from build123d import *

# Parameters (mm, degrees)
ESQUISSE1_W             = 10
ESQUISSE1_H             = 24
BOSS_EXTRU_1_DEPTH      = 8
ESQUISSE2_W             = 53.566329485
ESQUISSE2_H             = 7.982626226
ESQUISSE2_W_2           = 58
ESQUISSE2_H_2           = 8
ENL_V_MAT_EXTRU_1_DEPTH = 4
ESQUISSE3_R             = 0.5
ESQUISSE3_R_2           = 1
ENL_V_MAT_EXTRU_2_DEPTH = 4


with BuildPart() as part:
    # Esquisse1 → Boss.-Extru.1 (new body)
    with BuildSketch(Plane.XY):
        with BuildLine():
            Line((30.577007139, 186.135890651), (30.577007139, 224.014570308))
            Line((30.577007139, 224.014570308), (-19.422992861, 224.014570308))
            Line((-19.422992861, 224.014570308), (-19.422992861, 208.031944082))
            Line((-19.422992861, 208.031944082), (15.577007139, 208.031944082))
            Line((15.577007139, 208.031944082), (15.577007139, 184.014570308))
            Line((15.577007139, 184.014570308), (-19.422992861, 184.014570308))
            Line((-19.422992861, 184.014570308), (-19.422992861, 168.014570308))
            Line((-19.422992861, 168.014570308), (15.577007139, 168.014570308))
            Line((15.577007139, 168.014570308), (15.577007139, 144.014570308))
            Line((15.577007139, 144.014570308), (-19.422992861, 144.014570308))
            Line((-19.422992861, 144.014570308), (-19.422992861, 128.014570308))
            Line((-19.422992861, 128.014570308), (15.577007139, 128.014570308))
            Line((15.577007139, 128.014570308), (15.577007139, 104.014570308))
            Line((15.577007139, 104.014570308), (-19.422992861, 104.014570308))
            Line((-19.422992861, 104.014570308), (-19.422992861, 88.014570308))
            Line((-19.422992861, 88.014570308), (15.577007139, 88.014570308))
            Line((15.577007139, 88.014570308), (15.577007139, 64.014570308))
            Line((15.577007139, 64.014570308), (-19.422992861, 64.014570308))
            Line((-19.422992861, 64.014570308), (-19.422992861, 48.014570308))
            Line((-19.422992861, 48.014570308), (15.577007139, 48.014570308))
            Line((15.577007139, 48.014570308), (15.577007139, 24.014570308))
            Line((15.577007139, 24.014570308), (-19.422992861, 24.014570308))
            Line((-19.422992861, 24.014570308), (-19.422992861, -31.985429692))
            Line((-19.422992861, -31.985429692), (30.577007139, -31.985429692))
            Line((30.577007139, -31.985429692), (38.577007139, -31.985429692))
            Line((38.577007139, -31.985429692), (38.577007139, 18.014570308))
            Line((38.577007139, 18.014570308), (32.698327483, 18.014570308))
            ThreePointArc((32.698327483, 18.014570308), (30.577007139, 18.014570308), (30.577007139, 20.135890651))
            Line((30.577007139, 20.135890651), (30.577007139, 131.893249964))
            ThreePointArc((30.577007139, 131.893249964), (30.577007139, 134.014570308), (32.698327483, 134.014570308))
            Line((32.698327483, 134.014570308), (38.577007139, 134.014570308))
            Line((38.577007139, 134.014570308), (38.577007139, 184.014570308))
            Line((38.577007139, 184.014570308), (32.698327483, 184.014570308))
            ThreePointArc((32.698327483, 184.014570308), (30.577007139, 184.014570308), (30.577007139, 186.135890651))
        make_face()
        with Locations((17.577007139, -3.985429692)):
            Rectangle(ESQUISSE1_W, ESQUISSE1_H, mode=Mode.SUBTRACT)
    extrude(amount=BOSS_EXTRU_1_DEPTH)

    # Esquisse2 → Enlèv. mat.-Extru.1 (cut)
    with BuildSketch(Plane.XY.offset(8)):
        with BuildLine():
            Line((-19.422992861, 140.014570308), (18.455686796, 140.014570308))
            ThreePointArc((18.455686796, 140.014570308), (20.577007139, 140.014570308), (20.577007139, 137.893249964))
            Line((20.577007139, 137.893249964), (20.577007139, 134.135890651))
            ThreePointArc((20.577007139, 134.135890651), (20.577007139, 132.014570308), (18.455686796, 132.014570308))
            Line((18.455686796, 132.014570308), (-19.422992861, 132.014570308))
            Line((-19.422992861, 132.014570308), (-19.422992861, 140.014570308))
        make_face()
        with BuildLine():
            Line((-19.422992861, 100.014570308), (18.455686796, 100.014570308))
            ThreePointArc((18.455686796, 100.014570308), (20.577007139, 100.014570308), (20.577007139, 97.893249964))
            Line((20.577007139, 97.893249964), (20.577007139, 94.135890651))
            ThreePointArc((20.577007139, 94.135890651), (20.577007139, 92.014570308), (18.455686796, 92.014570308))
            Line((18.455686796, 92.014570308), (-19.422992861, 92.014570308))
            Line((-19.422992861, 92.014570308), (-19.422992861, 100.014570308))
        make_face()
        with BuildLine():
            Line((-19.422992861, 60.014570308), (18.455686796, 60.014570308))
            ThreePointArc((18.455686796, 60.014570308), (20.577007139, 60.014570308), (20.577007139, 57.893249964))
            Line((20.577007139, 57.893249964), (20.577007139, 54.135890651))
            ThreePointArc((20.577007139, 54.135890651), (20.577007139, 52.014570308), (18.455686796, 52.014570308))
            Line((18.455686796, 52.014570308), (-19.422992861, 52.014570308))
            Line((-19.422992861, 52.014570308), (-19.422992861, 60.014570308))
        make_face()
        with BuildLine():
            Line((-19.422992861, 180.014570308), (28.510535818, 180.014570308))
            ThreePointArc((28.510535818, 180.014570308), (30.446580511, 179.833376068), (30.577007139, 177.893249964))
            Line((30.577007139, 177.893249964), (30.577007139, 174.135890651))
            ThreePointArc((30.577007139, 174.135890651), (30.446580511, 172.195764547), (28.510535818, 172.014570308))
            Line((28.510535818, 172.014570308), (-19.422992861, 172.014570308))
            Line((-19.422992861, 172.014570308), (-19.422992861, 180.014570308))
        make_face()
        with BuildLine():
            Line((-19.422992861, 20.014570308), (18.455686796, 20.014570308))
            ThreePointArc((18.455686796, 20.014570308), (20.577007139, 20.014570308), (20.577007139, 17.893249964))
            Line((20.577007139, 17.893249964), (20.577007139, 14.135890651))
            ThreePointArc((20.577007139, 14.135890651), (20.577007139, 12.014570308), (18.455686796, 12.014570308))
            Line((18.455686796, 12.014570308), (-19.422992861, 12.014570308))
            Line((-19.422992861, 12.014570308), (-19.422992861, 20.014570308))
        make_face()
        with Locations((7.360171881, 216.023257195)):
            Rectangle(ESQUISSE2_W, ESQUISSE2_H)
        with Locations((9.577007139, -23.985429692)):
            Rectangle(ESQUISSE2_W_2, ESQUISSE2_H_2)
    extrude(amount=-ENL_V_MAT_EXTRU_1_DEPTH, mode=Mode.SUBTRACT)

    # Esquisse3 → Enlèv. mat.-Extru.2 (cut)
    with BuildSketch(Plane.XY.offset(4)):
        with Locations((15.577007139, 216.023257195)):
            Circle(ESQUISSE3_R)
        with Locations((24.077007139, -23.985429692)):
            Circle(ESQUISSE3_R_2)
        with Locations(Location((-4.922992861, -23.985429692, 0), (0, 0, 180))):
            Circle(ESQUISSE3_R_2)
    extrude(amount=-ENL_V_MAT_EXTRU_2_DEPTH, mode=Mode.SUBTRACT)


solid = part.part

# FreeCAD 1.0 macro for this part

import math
import FreeCAD as App
import Part
import Sketcher


def add_polygon(sketch, points):
    """Adds a closed chain of lines whose ends are joined by coincident constraints."""
    first, n = sketch.GeometryCount, len(points)
    for a, b in zip(points, points[1:] + points[:1]):
        sketch.addGeometry(Part.LineSegment(App.Vector(*a, 0), App.Vector(*b, 0)), False)
    for i in range(n):
        sketch.addConstraint(Sketcher.Constraint("Coincident", first + i, 2, first + (i + 1) % n, 1))

doc = App.newDocument("Part")
body = doc.addObject("PartDesign::Body", "Body")

sketch1 = body.newObject("Sketcher::SketchObject", "Sketch")
sketch1.AttachmentSupport = (doc.getObject("XY_Plane"), [""])
sketch1.MapMode = "FlatFace"
sketch1.addGeometry(Part.LineSegment(App.Vector(30.577007, 186.135891, 0), App.Vector(30.577007, 224.01457, 0)), False)
sketch1.addGeometry(Part.LineSegment(App.Vector(30.577007, 224.01457, 0), App.Vector(-19.422993, 224.01457, 0)), False)
sketch1.addGeometry(Part.LineSegment(App.Vector(-19.422993, 224.01457, 0), App.Vector(-19.422993, 208.031944, 0)), False)
sketch1.addGeometry(Part.LineSegment(App.Vector(-19.422993, 208.031944, 0), App.Vector(15.577007, 208.031944, 0)), False)
sketch1.addGeometry(Part.LineSegment(App.Vector(15.577007, 208.031944, 0), App.Vector(15.577007, 184.01457, 0)), False)
sketch1.addGeometry(Part.LineSegment(App.Vector(15.577007, 184.01457, 0), App.Vector(-19.422993, 184.01457, 0)), False)
sketch1.addGeometry(Part.LineSegment(App.Vector(-19.422993, 184.01457, 0), App.Vector(-19.422993, 168.01457, 0)), False)
sketch1.addGeometry(Part.LineSegment(App.Vector(-19.422993, 168.01457, 0), App.Vector(15.577007, 168.01457, 0)), False)
sketch1.addGeometry(Part.LineSegment(App.Vector(15.577007, 168.01457, 0), App.Vector(15.577007, 144.01457, 0)), False)
sketch1.addGeometry(Part.LineSegment(App.Vector(15.577007, 144.01457, 0), App.Vector(-19.422993, 144.01457, 0)), False)
sketch1.addGeometry(Part.LineSegment(App.Vector(-19.422993, 144.01457, 0), App.Vector(-19.422993, 128.01457, 0)), False)
sketch1.addGeometry(Part.LineSegment(App.Vector(-19.422993, 128.01457, 0), App.Vector(15.577007, 128.01457, 0)), False)
sketch1.addGeometry(Part.LineSegment(App.Vector(15.577007, 128.01457, 0), App.Vector(15.577007, 104.01457, 0)), False)
sketch1.addGeometry(Part.LineSegment(App.Vector(15.577007, 104.01457, 0), App.Vector(-19.422993, 104.01457, 0)), False)
sketch1.addGeometry(Part.LineSegment(App.Vector(-19.422993, 104.01457, 0), App.Vector(-19.422993, 88.01457, 0)), False)
sketch1.addGeometry(Part.LineSegment(App.Vector(-19.422993, 88.01457, 0), App.Vector(15.577007, 88.01457, 0)), False)
sketch1.addGeometry(Part.LineSegment(App.Vector(15.577007, 88.01457, 0), App.Vector(15.577007, 64.01457, 0)), False)
sketch1.addGeometry(Part.LineSegment(App.Vector(15.577007, 64.01457, 0), App.Vector(-19.422993, 64.01457, 0)), False)
sketch1.addGeometry(Part.LineSegment(App.Vector(-19.422993, 64.01457, 0), App.Vector(-19.422993, 48.01457, 0)), False)
sketch1.addGeometry(Part.LineSegment(App.Vector(-19.422993, 48.01457, 0), App.Vector(15.577007, 48.01457, 0)), False)
sketch1.addGeometry(Part.LineSegment(App.Vector(15.577007, 48.01457, 0), App.Vector(15.577007, 24.01457, 0)), False)
sketch1.addGeometry(Part.LineSegment(App.Vector(15.577007, 24.01457, 0), App.Vector(-19.422993, 24.01457, 0)), False)
sketch1.addGeometry(Part.LineSegment(App.Vector(-19.422993, 24.01457, 0), App.Vector(-19.422993, -31.98543, 0)), False)
sketch1.addGeometry(Part.LineSegment(App.Vector(-19.422993, -31.98543, 0), App.Vector(38.577007, -31.98543, 0)), False)
sketch1.addGeometry(Part.LineSegment(App.Vector(38.577007, -31.98543, 0), App.Vector(38.577007, 18.01457, 0)), False)
sketch1.addGeometry(Part.LineSegment(App.Vector(38.577007, 18.01457, 0), App.Vector(32.698327, 18.01457, 0)), False)
sketch1.addGeometry(Part.ArcOfCircle(Part.Circle(App.Vector(31.637667, 19.07523, 0), App.Vector(0, 0, 1), 1.5), math.radians(135), math.radians(315)), False)
sketch1.addGeometry(Part.LineSegment(App.Vector(30.577007, 20.135891, 0), App.Vector(30.577007, 131.89325, 0)), False)
sketch1.addGeometry(Part.ArcOfCircle(Part.Circle(App.Vector(31.637667, 132.95391, 0), App.Vector(0, 0, 1), 1.5), math.radians(45), math.radians(225)), False)
sketch1.addGeometry(Part.LineSegment(App.Vector(32.698327, 134.01457, 0), App.Vector(38.577007, 134.01457, 0)), False)
sketch1.addGeometry(Part.LineSegment(App.Vector(38.577007, 134.01457, 0), App.Vector(38.577007, 184.01457, 0)), False)
sketch1.addGeometry(Part.LineSegment(App.Vector(38.577007, 184.01457, 0), App.Vector(32.698327, 184.01457, 0)), False)
sketch1.addGeometry(Part.ArcOfCircle(Part.Circle(App.Vector(31.637667, 185.07523, 0), App.Vector(0, 0, 1), 1.5), math.radians(135), math.radians(315)), False)
add_polygon(sketch1, [(22.577007, -15.98543), (12.577007, -15.98543), (12.577007, 8.01457), (22.577007, 8.01457)])
sketch1.addConstraint([
    Sketcher.Constraint("Coincident", 0, 2, 1, 1),
    Sketcher.Constraint("Coincident", 1, 2, 2, 1),
    Sketcher.Constraint("Coincident", 2, 2, 3, 1),
    Sketcher.Constraint("Coincident", 3, 2, 4, 1),
    Sketcher.Constraint("Coincident", 4, 2, 5, 1),
    Sketcher.Constraint("Coincident", 5, 2, 6, 1),
    Sketcher.Constraint("Coincident", 6, 2, 7, 1),
    Sketcher.Constraint("Coincident", 7, 2, 8, 1),
    Sketcher.Constraint("Coincident", 8, 2, 9, 1),
    Sketcher.Constraint("Coincident", 9, 2, 10, 1),
    Sketcher.Constraint("Coincident", 10, 2, 11, 1),
    Sketcher.Constraint("Coincident", 11, 2, 12, 1),
    Sketcher.Constraint("Coincident", 12, 2, 13, 1),
    Sketcher.Constraint("Coincident", 13, 2, 14, 1),
    Sketcher.Constraint("Coincident", 14, 2, 15, 1),
    Sketcher.Constraint("Coincident", 15, 2, 16, 1),
    Sketcher.Constraint("Coincident", 16, 2, 17, 1),
    Sketcher.Constraint("Coincident", 17, 2, 18, 1),
    Sketcher.Constraint("Coincident", 18, 2, 19, 1),
    Sketcher.Constraint("Coincident", 19, 2, 20, 1),
    Sketcher.Constraint("Coincident", 20, 2, 21, 1),
    Sketcher.Constraint("Coincident", 21, 2, 22, 1),
    Sketcher.Constraint("Coincident", 22, 2, 23, 1),
    Sketcher.Constraint("Coincident", 23, 2, 24, 1),
    Sketcher.Constraint("Coincident", 24, 2, 25, 1),
    Sketcher.Constraint("Coincident", 25, 2, 26, 2),
    Sketcher.Constraint("Coincident", 26, 1, 27, 1),
    Sketcher.Constraint("Coincident", 27, 2, 28, 2),
    Sketcher.Constraint("Coincident", 28, 1, 29, 1),
    Sketcher.Constraint("Coincident", 29, 2, 30, 1),
    Sketcher.Constraint("Coincident", 30, 2, 31, 1),
    Sketcher.Constraint("Coincident", 31, 2, 32, 2),
    Sketcher.Constraint("Coincident", 32, 1, 0, 1),
    Sketcher.Constraint("Vertical", 0),
    Sketcher.Constraint("Horizontal", 1),
    Sketcher.Constraint("Vertical", 2),
    Sketcher.Constraint("Horizontal", 3),
    Sketcher.Constraint("Vertical", 4),
    Sketcher.Constraint("Horizontal", 5),
    Sketcher.Constraint("Vertical", 6),
    Sketcher.Constraint("Horizontal", 7),
    Sketcher.Constraint("Vertical", 8),
    Sketcher.Constraint("Horizontal", 9),
    Sketcher.Constraint("Vertical", 10),
    Sketcher.Constraint("Horizontal", 11),
    Sketcher.Constraint("Vertical", 12),
    Sketcher.Constraint("Horizontal", 13),
    Sketcher.Constraint("Vertical", 14),
    Sketcher.Constraint("Horizontal", 15),
    Sketcher.Constraint("Vertical", 16),
    Sketcher.Constraint("Horizontal", 17),
    Sketcher.Constraint("Vertical", 18),
    Sketcher.Constraint("Horizontal", 19),
    Sketcher.Constraint("Vertical", 20),
    Sketcher.Constraint("Horizontal", 21),
    Sketcher.Constraint("Vertical", 22),
    Sketcher.Constraint("Horizontal", 23),
    Sketcher.Constraint("Vertical", 24),
    Sketcher.Constraint("Horizontal", 25),
    Sketcher.Constraint("Vertical", 27),
    Sketcher.Constraint("Horizontal", 29),
    Sketcher.Constraint("Vertical", 30),
    Sketcher.Constraint("Horizontal", 31),
    Sketcher.Constraint("Horizontal", 33),
    Sketcher.Constraint("Vertical", 34),
    Sketcher.Constraint("Horizontal", 35),
    Sketcher.Constraint("Vertical", 36),
    Sketcher.Constraint("Equal", 26, 28),
    Sketcher.Constraint("Equal", 28, 32),
    Sketcher.Constraint("Horizontal", 5, 2, 30, 2),
    Sketcher.Constraint("Vertical", 26, 3, 28, 3),
    Sketcher.Constraint("Vertical", 28, 3, 32, 3),
    Sketcher.Constraint("Vertical", 2, 2, 5, 2),
    Sketcher.Constraint("Vertical", 4, 2, 7, 2),
    Sketcher.Constraint("Vertical", 6, 2, 9, 2),
    Sketcher.Constraint("Vertical", 8, 2, 11, 2),
    Sketcher.Constraint("Vertical", 10, 2, 13, 2),
    Sketcher.Constraint("Vertical", 12, 2, 15, 2),
    Sketcher.Constraint("Vertical", 14, 2, 17, 2),
    Sketcher.Constraint("Vertical", 16, 2, 19, 2),
    Sketcher.Constraint("Vertical", 18, 2, 21, 2),
    Sketcher.Constraint("Vertical", 0, 2, 26, 1),
    Sketcher.Constraint("Vertical", 25, 2, 28, 1),
    Sketcher.Constraint("Vertical", 24, 2, 29, 2),
    Sketcher.Constraint("Vertical", 28, 1, 31, 2),
    Sketcher.Constraint("Equal", 6, 10),
    Sketcher.Constraint("Equal", 8, 12),
    Sketcher.Constraint("Equal", 10, 14),
    Sketcher.Constraint("Equal", 12, 16),
    Sketcher.Constraint("Equal", 14, 18),
    Sketcher.Constraint("Equal", 16, 20),
    Sketcher.Constraint("Equal", 1, 24),
    Sketcher.Constraint("Equal", 24, 30),
    Sketcher.Constraint("Equal", 20, 34),
    Sketcher.Constraint("Radius", 26, 1.5),
    Sketcher.Constraint("DistanceX", 1, 2, 1, 1, 50.0),
    Sketcher.Constraint("DistanceX", 3, 1, 3, 2, 35.0),
    Sketcher.Constraint("DistanceX", 23, 1, 23, 2, 58.0),
    Sketcher.Constraint("DistanceX", 33, 2, 33, 1, 10.0),
    Sketcher.Constraint("DistanceY", 6, 2, 6, 1, 16.0),
    Sketcher.Constraint("DistanceY", 8, 2, 8, 1, 24.0),
    Sketcher.Constraint("DistanceY", 22, 2, 22, 1, 56.0),
    Sketcher.Constraint("DistanceY", 4, 2, 0, 2, 40.0),
    Sketcher.Constraint("DistanceX", 33, 2, 23, 2, 26.0),
    Sketcher.Constraint("DistanceY", 23, 2, 33, 2, 16.0),
    Sketcher.Constraint("DistanceX", 25, 2, 25, 1, 5.87868),
    Sketcher.Constraint("DistanceY", 2, 2, 2, 1, 15.982626),
    Sketcher.Constraint("DistanceY", -1, 1, 26, 3, 19.07523),
    Sketcher.Constraint("DistanceY", -1, 1, 28, 3, 132.95391),
    Sketcher.Constraint("DistanceX", -1, 1, 26, 3, 31.637667),
])
pad1 = body.newObject("PartDesign::Pad", "Pad")
pad1.Profile = sketch1
pad1.Length = 8

sketch2 = body.newObject("Sketcher::SketchObject", "Sketch001")
sketch2.AttachmentSupport = (doc.getObject("XY_Plane"), [""])
sketch2.MapMode = "FlatFace"
sketch2.AttachmentOffset = App.Placement(App.Vector(0, 0, 8), App.Rotation())
sketch2.addGeometry(Part.LineSegment(App.Vector(18.455687, 140.01457, 0), App.Vector(-19.422993, 140.01457, 0)), False)
sketch2.addGeometry(Part.LineSegment(App.Vector(-19.422993, 140.01457, 0), App.Vector(-19.422993, 132.01457, 0)), False)
sketch2.addGeometry(Part.LineSegment(App.Vector(-19.422993, 132.01457, 0), App.Vector(18.455687, 132.01457, 0)), False)
sketch2.addGeometry(Part.ArcOfCircle(Part.Circle(App.Vector(19.516347, 133.07523, 0), App.Vector(0, 0, 1), 1.5), math.radians(-135), math.radians(45)), False)
sketch2.addGeometry(Part.LineSegment(App.Vector(20.577007, 134.135891, 0), App.Vector(20.577007, 137.89325, 0)), False)
sketch2.addGeometry(Part.ArcOfCircle(Part.Circle(App.Vector(19.516347, 138.95391, 0), App.Vector(0, 0, 1), 1.5), math.radians(-45), math.radians(135)), False)
sketch2.addGeometry(Part.LineSegment(App.Vector(18.455687, 100.01457, 0), App.Vector(-19.422993, 100.01457, 0)), False)
sketch2.addGeometry(Part.LineSegment(App.Vector(-19.422993, 100.01457, 0), App.Vector(-19.422993, 92.01457, 0)), False)
sketch2.addGeometry(Part.LineSegment(App.Vector(-19.422993, 92.01457, 0), App.Vector(18.455687, 92.01457, 0)), False)
sketch2.addGeometry(Part.ArcOfCircle(Part.Circle(App.Vector(19.516347, 93.07523, 0), App.Vector(0, 0, 1), 1.5), math.radians(-135), math.radians(45)), False)
sketch2.addGeometry(Part.LineSegment(App.Vector(20.577007, 94.135891, 0), App.Vector(20.577007, 97.89325, 0)), False)
sketch2.addGeometry(Part.ArcOfCircle(Part.Circle(App.Vector(19.516347, 98.95391, 0), App.Vector(0, 0, 1), 1.5), math.radians(-45), math.radians(135)), False)
sketch2.addGeometry(Part.LineSegment(App.Vector(18.455687, 60.01457, 0), App.Vector(-19.422993, 60.01457, 0)), False)
sketch2.addGeometry(Part.LineSegment(App.Vector(-19.422993, 60.01457, 0), App.Vector(-19.422993, 52.01457, 0)), False)
sketch2.addGeometry(Part.LineSegment(App.Vector(-19.422993, 52.01457, 0), App.Vector(18.455687, 52.01457, 0)), False)
sketch2.addGeometry(Part.ArcOfCircle(Part.Circle(App.Vector(19.516347, 53.07523, 0), App.Vector(0, 0, 1), 1.5), math.radians(-135), math.radians(45)), False)
sketch2.addGeometry(Part.LineSegment(App.Vector(20.577007, 54.135891, 0), App.Vector(20.577007, 57.89325, 0)), False)
sketch2.addGeometry(Part.ArcOfCircle(Part.Circle(App.Vector(19.516347, 58.95391, 0), App.Vector(0, 0, 1), 1.5), math.radians(-45), math.radians(135)), False)
sketch2.addGeometry(Part.LineSegment(App.Vector(28.510536, 180.01457, 0), App.Vector(-19.422993, 180.01457, 0)), False)
sketch2.addGeometry(Part.LineSegment(App.Vector(-19.422993, 180.01457, 0), App.Vector(-19.422993, 172.01457, 0)), False)
sketch2.addGeometry(Part.LineSegment(App.Vector(-19.422993, 172.01457, 0), App.Vector(28.510536, 172.01457, 0)), False)
sketch2.addGeometry(Part.ArcOfCircle(Part.Circle(App.Vector(29.372121, 173.242443, 0), App.Vector(0, 0, 1), 1.5), math.radians(-125.056917), math.radians(36.557678)), False)
sketch2.addGeometry(Part.LineSegment(App.Vector(30.577007, 174.135891, 0), App.Vector(30.577007, 177.89325, 0)), False)
sketch2.addGeometry(Part.ArcOfCircle(Part.Circle(App.Vector(29.372121, 178.786698, 0), App.Vector(0, 0, 1), 1.5), math.radians(-36.557678), math.radians(125.056916)), False)
sketch2.addGeometry(Part.LineSegment(App.Vector(18.455687, 20.01457, 0), App.Vector(-19.422993, 20.01457, 0)), False)
sketch2.addGeometry(Part.LineSegment(App.Vector(-19.422993, 20.01457, 0), App.Vector(-19.422993, 12.01457, 0)), False)
sketch2.addGeometry(Part.LineSegment(App.Vector(-19.422993, 12.01457, 0), App.Vector(18.455687, 12.01457, 0)), False)
sketch2.addGeometry(Part.ArcOfCircle(Part.Circle(App.Vector(19.516347, 13.07523, 0), App.Vector(0, 0, 1), 1.5), math.radians(-135), math.radians(45)), False)
sketch2.addGeometry(Part.LineSegment(App.Vector(20.577007, 14.135891, 0), App.Vector(20.577007, 17.89325, 0)), False)
sketch2.addGeometry(Part.ArcOfCircle(Part.Circle(App.Vector(19.516347, 18.95391, 0), App.Vector(0, 0, 1), 1.5), math.radians(-45), math.radians(135)), False)
add_polygon(sketch2, [(-19.422993, 220.01457), (-19.422993, 212.031944), (34.143337, 212.031944), (34.143337, 220.01457)])
add_polygon(sketch2, [(-19.422993, -19.98543), (-19.422993, -27.98543), (38.577007, -27.98543), (38.577007, -19.98543)])
sketch2.addConstraint([
    Sketcher.Constraint("Coincident", 0, 2, 1, 1),
    Sketcher.Constraint("Coincident", 1, 2, 2, 1),
    Sketcher.Constraint("Coincident", 2, 2, 3, 1),
    Sketcher.Constraint("Coincident", 3, 2, 4, 1),
    Sketcher.Constraint("Coincident", 4, 2, 5, 1),
    Sketcher.Constraint("Coincident", 5, 2, 0, 1),
    Sketcher.Constraint("Coincident", 6, 2, 7, 1),
    Sketcher.Constraint("Coincident", 7, 2, 8, 1),
    Sketcher.Constraint("Coincident", 8, 2, 9, 1),
    Sketcher.Constraint("Coincident", 9, 2, 10, 1),
    Sketcher.Constraint("Coincident", 10, 2, 11, 1),
    Sketcher.Constraint("Coincident", 11, 2, 6, 1),
    Sketcher.Constraint("Coincident", 12, 2, 13, 1),
    Sketcher.Constraint("Coincident", 13, 2, 14, 1),
    Sketcher.Constraint("Coincident", 14, 2, 15, 1),
    Sketcher.Constraint("Coincident", 15, 2, 16, 1),
    Sketcher.Constraint("Coincident", 16, 2, 17, 1),
    Sketcher.Constraint("Coincident", 17, 2, 12, 1),
    Sketcher.Constraint("Coincident", 18, 2, 19, 1),
    Sketcher.Constraint("Coincident", 19, 2, 20, 1),
    Sketcher.Constraint("Coincident", 20, 2, 21, 1),
    Sketcher.Constraint("Coincident", 21, 2, 22, 1),
    Sketcher.Constraint("Coincident", 22, 2, 23, 1),
    Sketcher.Constraint("Coincident", 23, 2, 18, 1),
    Sketcher.Constraint("Coincident", 24, 2, 25, 1),
    Sketcher.Constraint("Coincident", 25, 2, 26, 1),
    Sketcher.Constraint("Coincident", 26, 2, 27, 1),
    Sketcher.Constraint("Coincident", 27, 2, 28, 1),
    Sketcher.Constraint("Coincident", 28, 2, 29, 1),
    Sketcher.Constraint("Coincident", 29, 2, 24, 1),
    Sketcher.Constraint("Horizontal", 0),
    Sketcher.Constraint("Vertical", 1),
    Sketcher.Constraint("Horizontal", 2),
    Sketcher.Constraint("Vertical", 4),
    Sketcher.Constraint("Horizontal", 6),
    Sketcher.Constraint("Vertical", 7),
    Sketcher.Constraint("Horizontal", 8),
    Sketcher.Constraint("Vertical", 10),
    Sketcher.Constraint("Horizontal", 12),
    Sketcher.Constraint("Vertical", 13),
    Sketcher.Constraint("Horizontal", 14),
    Sketcher.Constraint("Vertical", 16),
    Sketcher.Constraint("Horizontal", 18),
    Sketcher.Constraint("Vertical", 19),
    Sketcher.Constraint("Horizontal", 20),
    Sketcher.Constraint("Vertical", 22),
    Sketcher.Constraint("Horizontal", 24),
    Sketcher.Constraint("Vertical", 25),
    Sketcher.Constraint("Horizontal", 26),
    Sketcher.Constraint("Vertical", 28),
    Sketcher.Constraint("Vertical", 30),
    Sketcher.Constraint("Horizontal", 31),
    Sketcher.Constraint("Vertical", 32),
    Sketcher.Constraint("Horizontal", 33),
    Sketcher.Constraint("Vertical", 34),
    Sketcher.Constraint("Horizontal", 35),
    Sketcher.Constraint("Vertical", 36),
    Sketcher.Constraint("Horizontal", 37),
    Sketcher.Constraint("Equal", 3, 5),
    Sketcher.Constraint("Equal", 5, 9),
    Sketcher.Constraint("Equal", 9, 11),
    Sketcher.Constraint("Equal", 11, 15),
    Sketcher.Constraint("Equal", 15, 17),
    Sketcher.Constraint("Equal", 17, 21),
    Sketcher.Constraint("Equal", 21, 23),
    Sketcher.Constraint("Equal", 23, 27),
    Sketcher.Constraint("Equal", 27, 29),
    Sketcher.Constraint("Vertical", 3, 3, 5, 3),
    Sketcher.Constraint("Vertical", 5, 3, 9, 3),
    Sketcher.Constraint("Vertical", 9, 3, 11, 3),
    Sketcher.Constraint("Vertical", 11, 3, 15, 3),
    Sketcher.Constraint("Vertical", 15, 3, 17, 3),
    Sketcher.Constraint("Vertical", 21, 3, 23, 3),
    Sketcher.Constraint("Vertical", 17, 3, 27, 3),
    Sketcher.Constraint("Vertical", 27, 3, 29, 3),
    Sketcher.Constraint("Vertical", 2, 2, 5, 2),
    Sketcher.Constraint("Vertical", 1, 2, 6, 2),
    Sketcher.Constraint("Vertical", 5, 2, 8, 2),
    Sketcher.Constraint("Vertical", 4, 2, 9, 2),
    Sketcher.Constraint("Vertical", 8, 2, 11, 2),
    Sketcher.Constraint("Vertical", 7, 2, 12, 2),
    Sketcher.Constraint("Vertical", 11, 2, 14, 2),
    Sketcher.Constraint("Vertical", 10, 2, 15, 2),
    Sketcher.Constraint("Vertical", 14, 2, 17, 2),
    Sketcher.Constraint("Vertical", 13, 2, 18, 2),
    Sketcher.Constraint("Vertical", 20, 2, 23, 2),
    Sketcher.Constraint("Vertical", 19, 2, 24, 2),
    Sketcher.Constraint("Vertical", 17, 2, 26, 2),
    Sketcher.Constraint("Vertical", 16, 2, 27, 2),
    Sketcher.Constraint("Vertical", 26, 2, 29, 2),
    Sketcher.Constraint("Vertical", 25, 2, 30, 2),
    Sketcher.Constraint("Vertical", 33, 2, 34, 2),
    Sketcher.Constraint("Equal", 1, 7),
    Sketcher.Constraint("Equal", 7, 13),
    Sketcher.Constraint("Equal", 13, 19),
    Sketcher.Constraint("Equal", 16, 22),
    Sketcher.Constraint("Equal", 19, 25),
    Sketcher.Constraint("Equal", 25, 34),
    Sketcher.Constraint("Radius", 3, 1.5),
    Sketcher.Constraint("DistanceX", 35, 1, 35, 2, 58.0),
    Sketcher.Constraint("DistanceY", 1, 2, 1, 1, 8.0),
    Sketcher.Constraint("DistanceY", 9, 3, 3, 3, 40.0),
    Sketcher.Constraint("DistanceY", 15, 3, 9, 3, 40.0),
    Sketcher.Constraint("DistanceY", 27, 3, 15, 3, 40.0),
    Sketcher.Constraint("DistanceX", 1, 2, 3, 2, 40.0),
    Sketcher.Constraint("DistanceY", 0, 2, 18, 2, 40.0),
    Sketcher.Constraint("DistanceX", 30, 2, 22, 2, 50.0),
    Sketcher.Constraint("DistanceY", 23, 2, 32, 2, 40.0),
    Sketcher.Constraint("DistanceY", 34, 2, 25, 2, 40.0),
    Sketcher.Constraint("DistanceX", 0, 2, 0, 1, 37.87868),
    Sketcher.Constraint("DistanceX", 18, 2, 18, 1, 47.933529),
    Sketcher.Constraint("DistanceX", 31, 1, 31, 2, 53.566329),
    Sketcher.Constraint("DistanceY", 21, 3, 31, 2, 38.789501),
    Sketcher.Constraint("DistanceY", -1, 1, 3, 3, 133.07523),
    Sketcher.Constraint("DistanceY", -1, 1, 5, 3, 138.95391),
    Sketcher.Constraint("DistanceX", -1, 1, 21, 3, 29.372121),
])
pocket1 = body.newObject("PartDesign::Pocket", "Pocket")
pocket1.Profile = sketch2
pocket1.Length = 4

sketch3 = body.newObject("Sketcher::SketchObject", "Sketch002")
sketch3.AttachmentSupport = (doc.getObject("XY_Plane"), [""])
sketch3.MapMode = "FlatFace"
sketch3.AttachmentOffset = App.Placement(App.Vector(0, 0, 4), App.Rotation())
sketch3.addGeometry([
    Part.Circle(App.Vector(15.577007, 216.023257, 0), App.Vector(0, 0, 1), 0.5),
    Part.Circle(App.Vector(24.077007, -23.98543, 0), App.Vector(0, 0, 1), 1),
    Part.Circle(App.Vector(-4.922993, -23.98543, 0), App.Vector(0, 0, 1), 1),
], False)
sketch3.addConstraint([
    Sketcher.Constraint("Equal", 1, 2),
    Sketcher.Constraint("Horizontal", 1, 3, 2, 3),
    Sketcher.Constraint("Diameter", 0, 1.0),
    Sketcher.Constraint("Diameter", 1, 2.0),
    Sketcher.Constraint("DistanceX", 2, 3, 1, 3, 29.0),
    Sketcher.Constraint("DistanceX", 0, 3, 1, 3, 8.5),
    Sketcher.Constraint("DistanceY", 1, 3, -1, 1, 23.98543),
    Sketcher.Constraint("DistanceX", -1, 1, 0, 3, 15.577007),
    Sketcher.Constraint("DistanceY", -1, 1, 0, 3, 216.023257),
])
pocket2 = body.newObject("PartDesign::Pocket", "Pocket001")
pocket2.Profile = sketch3
pocket2.Length = 4

doc.recompute()
